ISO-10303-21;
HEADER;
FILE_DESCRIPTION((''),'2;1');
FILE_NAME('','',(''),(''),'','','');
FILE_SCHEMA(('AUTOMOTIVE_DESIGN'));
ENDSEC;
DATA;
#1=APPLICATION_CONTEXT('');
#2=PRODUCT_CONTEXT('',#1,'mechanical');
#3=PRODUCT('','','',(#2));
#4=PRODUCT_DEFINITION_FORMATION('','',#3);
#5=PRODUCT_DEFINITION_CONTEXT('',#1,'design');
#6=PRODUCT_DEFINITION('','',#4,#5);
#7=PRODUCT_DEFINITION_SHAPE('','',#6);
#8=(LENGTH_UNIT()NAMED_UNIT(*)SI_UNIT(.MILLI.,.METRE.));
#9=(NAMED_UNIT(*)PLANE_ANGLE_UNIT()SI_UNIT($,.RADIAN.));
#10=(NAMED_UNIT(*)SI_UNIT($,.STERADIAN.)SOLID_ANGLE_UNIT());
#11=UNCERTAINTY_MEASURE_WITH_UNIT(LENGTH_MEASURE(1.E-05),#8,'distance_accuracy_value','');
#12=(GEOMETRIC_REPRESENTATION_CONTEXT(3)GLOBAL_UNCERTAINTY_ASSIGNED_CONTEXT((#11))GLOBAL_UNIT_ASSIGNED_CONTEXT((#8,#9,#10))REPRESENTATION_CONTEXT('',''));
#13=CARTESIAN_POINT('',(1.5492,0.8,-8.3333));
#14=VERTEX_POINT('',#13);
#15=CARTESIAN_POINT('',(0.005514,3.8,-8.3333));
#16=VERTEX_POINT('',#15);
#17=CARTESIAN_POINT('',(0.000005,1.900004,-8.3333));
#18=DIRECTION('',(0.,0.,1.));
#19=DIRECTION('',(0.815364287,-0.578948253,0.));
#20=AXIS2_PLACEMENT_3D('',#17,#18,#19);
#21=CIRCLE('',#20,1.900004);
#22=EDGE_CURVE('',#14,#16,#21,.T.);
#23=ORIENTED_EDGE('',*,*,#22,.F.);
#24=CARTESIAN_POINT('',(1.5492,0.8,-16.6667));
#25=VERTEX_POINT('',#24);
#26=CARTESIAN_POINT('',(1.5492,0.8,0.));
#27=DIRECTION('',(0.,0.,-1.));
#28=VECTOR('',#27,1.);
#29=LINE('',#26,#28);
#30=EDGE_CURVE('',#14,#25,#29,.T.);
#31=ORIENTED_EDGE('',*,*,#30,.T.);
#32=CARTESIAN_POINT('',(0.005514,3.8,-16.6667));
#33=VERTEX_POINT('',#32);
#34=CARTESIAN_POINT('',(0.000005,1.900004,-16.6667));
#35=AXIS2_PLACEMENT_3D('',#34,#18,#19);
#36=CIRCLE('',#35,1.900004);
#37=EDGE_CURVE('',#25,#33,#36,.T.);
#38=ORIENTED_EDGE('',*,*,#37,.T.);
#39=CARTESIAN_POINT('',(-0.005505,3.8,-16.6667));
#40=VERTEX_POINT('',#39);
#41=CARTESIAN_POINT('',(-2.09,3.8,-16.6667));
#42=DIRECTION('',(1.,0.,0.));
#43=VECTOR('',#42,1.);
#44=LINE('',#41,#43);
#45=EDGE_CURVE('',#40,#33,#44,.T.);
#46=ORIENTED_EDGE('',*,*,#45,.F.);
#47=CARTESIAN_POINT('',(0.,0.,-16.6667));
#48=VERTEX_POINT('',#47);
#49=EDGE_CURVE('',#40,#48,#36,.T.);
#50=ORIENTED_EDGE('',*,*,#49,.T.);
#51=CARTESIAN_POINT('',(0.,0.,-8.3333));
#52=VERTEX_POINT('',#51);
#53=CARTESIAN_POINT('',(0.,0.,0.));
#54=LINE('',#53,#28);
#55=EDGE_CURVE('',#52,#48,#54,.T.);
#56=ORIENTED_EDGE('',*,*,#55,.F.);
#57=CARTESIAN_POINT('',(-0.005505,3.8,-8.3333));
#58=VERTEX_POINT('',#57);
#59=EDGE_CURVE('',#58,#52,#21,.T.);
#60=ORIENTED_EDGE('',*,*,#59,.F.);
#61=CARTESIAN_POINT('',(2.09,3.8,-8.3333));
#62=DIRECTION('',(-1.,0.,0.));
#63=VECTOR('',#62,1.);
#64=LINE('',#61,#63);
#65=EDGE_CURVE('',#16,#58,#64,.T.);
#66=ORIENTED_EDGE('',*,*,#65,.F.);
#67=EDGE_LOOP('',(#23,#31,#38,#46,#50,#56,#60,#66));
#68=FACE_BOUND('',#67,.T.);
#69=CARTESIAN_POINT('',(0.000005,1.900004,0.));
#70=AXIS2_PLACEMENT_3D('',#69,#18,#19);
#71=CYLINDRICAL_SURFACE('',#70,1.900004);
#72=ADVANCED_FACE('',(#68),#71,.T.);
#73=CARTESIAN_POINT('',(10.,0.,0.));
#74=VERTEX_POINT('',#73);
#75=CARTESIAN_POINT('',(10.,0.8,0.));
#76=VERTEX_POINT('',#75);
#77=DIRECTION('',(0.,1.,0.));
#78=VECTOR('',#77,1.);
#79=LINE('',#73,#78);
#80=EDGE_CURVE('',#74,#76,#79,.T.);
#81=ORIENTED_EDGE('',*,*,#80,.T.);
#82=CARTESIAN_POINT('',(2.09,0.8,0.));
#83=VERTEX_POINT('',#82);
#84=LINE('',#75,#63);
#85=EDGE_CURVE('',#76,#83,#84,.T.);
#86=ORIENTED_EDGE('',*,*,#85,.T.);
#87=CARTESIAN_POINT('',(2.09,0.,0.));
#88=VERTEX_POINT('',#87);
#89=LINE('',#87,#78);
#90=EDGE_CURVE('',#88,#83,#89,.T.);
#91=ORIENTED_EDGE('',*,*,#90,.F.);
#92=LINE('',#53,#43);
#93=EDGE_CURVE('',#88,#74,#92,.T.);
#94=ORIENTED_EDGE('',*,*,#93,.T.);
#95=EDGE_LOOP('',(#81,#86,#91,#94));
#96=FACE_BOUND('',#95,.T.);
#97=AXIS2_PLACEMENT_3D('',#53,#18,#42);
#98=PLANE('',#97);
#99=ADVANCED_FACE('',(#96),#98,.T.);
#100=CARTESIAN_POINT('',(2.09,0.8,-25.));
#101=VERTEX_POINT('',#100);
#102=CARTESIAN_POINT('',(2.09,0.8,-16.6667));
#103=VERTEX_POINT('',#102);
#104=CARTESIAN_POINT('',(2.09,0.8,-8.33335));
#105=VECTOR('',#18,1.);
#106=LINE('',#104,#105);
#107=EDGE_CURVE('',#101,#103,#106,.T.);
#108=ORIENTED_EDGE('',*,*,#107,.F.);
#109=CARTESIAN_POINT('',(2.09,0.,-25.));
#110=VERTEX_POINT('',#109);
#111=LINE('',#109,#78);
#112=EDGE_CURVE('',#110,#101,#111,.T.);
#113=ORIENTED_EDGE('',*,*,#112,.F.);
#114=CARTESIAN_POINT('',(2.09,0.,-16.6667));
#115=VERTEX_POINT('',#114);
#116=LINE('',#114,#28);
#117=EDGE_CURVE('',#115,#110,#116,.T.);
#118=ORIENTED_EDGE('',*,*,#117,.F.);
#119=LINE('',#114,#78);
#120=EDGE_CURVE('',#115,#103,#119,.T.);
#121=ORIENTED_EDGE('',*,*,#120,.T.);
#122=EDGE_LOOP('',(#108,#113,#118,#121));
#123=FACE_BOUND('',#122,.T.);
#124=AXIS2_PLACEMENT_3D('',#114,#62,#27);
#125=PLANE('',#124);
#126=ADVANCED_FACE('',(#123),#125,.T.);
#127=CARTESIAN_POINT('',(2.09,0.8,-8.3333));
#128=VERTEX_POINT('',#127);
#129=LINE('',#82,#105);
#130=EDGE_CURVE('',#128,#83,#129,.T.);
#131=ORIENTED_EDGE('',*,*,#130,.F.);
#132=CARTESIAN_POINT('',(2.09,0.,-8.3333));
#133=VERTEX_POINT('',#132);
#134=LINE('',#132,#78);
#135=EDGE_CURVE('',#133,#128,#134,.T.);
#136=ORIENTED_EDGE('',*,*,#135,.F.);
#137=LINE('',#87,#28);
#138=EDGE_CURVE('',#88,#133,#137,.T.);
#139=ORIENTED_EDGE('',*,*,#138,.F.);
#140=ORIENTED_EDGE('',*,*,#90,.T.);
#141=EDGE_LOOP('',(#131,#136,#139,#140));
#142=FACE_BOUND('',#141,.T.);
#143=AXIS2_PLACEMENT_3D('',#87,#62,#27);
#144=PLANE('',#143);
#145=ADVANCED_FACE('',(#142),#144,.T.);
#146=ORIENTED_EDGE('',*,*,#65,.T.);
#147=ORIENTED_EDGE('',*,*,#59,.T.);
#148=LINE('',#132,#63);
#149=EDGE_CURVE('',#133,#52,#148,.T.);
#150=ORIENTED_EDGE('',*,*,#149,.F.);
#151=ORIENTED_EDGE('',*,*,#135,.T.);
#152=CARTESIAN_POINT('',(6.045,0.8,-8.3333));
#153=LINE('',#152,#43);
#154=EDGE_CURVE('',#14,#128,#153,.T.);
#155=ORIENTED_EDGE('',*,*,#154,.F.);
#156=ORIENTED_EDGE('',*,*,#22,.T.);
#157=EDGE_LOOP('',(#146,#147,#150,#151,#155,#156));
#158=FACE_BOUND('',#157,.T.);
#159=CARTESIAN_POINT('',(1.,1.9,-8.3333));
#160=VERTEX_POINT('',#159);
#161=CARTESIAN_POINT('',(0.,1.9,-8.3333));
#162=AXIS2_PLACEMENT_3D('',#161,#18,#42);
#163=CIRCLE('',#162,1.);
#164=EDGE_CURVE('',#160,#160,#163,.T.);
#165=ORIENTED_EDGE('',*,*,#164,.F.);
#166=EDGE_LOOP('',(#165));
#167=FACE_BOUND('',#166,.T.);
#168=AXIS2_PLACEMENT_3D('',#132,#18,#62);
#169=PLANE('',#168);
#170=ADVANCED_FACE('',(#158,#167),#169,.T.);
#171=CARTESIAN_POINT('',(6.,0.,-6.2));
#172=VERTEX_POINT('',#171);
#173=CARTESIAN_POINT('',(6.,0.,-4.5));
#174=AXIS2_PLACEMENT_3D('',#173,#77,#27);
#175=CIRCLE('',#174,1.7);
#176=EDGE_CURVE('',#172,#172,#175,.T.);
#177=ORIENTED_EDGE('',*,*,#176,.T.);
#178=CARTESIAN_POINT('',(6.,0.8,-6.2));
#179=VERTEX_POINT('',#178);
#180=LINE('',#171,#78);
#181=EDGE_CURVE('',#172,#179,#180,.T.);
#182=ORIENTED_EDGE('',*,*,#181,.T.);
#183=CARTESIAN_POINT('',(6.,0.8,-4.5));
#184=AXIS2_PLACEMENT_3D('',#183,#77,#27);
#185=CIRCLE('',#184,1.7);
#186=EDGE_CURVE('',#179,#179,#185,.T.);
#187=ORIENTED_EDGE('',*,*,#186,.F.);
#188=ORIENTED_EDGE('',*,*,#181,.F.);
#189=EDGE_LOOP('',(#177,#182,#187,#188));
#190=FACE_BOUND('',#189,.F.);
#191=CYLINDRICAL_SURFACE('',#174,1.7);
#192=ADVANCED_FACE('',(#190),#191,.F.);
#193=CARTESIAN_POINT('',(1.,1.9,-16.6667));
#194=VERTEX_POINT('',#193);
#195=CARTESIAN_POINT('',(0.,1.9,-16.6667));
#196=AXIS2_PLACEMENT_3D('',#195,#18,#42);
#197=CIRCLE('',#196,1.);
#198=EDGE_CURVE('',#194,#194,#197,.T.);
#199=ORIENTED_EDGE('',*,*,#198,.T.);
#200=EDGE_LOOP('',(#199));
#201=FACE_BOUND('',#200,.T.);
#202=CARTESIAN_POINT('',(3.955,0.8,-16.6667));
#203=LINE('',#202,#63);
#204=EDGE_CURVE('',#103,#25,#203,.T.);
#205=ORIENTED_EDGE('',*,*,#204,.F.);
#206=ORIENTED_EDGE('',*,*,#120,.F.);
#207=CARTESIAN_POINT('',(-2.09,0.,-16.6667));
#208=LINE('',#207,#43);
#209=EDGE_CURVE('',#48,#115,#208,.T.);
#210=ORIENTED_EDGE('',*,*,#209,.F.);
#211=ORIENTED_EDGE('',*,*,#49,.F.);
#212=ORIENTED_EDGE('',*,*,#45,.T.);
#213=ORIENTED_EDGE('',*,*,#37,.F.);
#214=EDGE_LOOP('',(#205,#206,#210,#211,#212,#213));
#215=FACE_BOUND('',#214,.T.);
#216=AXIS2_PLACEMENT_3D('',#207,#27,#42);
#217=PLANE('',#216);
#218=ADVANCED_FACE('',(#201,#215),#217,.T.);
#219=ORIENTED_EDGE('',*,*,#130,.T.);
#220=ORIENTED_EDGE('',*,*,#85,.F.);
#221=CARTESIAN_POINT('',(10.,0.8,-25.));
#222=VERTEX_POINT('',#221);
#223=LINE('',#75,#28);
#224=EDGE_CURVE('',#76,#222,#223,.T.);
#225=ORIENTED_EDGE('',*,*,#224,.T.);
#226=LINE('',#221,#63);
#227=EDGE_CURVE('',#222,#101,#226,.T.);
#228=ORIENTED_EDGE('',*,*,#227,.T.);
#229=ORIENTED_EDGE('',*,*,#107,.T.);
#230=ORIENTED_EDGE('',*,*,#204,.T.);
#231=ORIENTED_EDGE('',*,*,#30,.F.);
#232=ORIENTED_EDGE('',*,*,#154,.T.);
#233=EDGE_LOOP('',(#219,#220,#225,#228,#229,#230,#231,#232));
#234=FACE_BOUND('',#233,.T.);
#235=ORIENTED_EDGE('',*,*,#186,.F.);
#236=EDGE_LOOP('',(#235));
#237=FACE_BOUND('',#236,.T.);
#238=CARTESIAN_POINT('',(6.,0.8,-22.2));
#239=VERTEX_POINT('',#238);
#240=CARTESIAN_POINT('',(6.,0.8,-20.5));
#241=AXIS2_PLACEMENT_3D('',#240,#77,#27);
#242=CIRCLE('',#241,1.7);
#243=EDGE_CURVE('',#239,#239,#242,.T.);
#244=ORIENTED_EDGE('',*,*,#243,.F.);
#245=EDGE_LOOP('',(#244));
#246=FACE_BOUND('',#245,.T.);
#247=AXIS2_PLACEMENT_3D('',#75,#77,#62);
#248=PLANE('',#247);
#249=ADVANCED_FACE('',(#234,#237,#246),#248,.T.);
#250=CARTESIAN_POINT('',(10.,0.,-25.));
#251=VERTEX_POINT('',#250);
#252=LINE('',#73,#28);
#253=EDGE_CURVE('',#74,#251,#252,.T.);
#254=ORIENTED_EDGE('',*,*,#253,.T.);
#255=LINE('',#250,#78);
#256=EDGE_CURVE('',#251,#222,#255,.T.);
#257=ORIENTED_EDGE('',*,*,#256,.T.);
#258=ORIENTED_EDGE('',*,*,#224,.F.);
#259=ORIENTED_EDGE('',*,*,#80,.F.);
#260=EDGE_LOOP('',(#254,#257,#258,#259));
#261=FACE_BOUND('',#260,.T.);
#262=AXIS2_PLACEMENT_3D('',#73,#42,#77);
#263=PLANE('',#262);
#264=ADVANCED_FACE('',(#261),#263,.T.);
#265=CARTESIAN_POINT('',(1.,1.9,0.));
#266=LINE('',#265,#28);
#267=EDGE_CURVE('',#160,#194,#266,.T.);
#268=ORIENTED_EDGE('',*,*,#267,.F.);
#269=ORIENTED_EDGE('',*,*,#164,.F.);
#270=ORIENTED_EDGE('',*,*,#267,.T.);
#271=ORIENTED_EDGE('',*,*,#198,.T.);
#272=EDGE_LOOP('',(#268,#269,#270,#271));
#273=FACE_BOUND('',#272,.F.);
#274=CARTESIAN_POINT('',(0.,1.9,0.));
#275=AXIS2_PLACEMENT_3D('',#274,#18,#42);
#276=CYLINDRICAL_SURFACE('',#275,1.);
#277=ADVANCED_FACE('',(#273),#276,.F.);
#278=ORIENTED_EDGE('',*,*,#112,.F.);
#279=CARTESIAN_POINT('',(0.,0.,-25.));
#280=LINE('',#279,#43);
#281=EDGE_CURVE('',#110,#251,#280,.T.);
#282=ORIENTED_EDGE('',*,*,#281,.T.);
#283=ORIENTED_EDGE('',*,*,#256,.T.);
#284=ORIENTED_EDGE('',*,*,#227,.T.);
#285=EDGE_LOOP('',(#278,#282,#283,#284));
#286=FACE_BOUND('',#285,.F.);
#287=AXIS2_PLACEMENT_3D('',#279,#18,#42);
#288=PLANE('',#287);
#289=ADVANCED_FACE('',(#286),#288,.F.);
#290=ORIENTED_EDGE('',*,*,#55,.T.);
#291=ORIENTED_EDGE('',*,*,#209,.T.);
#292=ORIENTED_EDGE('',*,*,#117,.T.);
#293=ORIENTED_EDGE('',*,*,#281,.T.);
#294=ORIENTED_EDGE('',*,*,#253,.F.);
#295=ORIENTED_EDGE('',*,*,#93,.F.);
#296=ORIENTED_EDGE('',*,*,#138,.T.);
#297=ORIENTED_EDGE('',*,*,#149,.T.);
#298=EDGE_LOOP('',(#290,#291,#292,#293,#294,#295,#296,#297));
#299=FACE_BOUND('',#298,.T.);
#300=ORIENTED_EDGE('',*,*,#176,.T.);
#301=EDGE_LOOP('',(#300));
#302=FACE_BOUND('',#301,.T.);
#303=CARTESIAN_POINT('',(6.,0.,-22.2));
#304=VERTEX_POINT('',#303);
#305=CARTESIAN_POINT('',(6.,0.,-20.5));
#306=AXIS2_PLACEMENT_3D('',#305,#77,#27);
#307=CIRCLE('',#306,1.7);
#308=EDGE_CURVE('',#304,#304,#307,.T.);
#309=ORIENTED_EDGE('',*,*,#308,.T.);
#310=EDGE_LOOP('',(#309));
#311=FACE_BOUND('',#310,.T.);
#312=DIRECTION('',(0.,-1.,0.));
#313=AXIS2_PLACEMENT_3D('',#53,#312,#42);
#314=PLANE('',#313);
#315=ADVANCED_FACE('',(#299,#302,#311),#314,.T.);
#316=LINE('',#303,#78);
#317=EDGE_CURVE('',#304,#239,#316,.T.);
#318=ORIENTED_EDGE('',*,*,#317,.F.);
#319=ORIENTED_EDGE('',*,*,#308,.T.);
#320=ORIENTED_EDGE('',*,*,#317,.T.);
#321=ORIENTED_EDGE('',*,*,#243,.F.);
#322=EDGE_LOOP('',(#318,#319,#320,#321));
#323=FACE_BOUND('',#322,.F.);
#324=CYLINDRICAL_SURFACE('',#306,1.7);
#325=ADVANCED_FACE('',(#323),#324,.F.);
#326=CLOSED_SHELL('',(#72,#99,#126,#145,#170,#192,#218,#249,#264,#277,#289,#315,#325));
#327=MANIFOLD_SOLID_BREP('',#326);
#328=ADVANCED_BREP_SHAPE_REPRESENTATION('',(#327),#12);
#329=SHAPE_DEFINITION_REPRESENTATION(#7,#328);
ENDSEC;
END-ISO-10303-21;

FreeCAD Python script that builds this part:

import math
import FreeCAD as App
import Part
import Sketcher
Q = App.Units.Quantity

doc = App.newDocument("Part")
params = doc.addObject("Spreadsheet::Sheet", "Params")
for row, (alias, value) in enumerate([
    ("sketch1_diameter", "2 mm"),
    ("sketch1_radius", "1.9 mm"),
    ("sketch1_width", "10 mm"),
    ("sketch1_height", "0.8 mm"),
    ("pad1_length", "25 mm"),
    ("sketch2_height", "25 mm"),
    ("sketch2_width", "8.09 mm"),
    ("sketch2_width2", "4.18 mm"),
    ("pocket1_length", "3.8 mm"),
    ("sketch3_diameter", "3.4 mm"),
    ("hole_diameter", "3.4 mm"),
    ("hole_depth", "0.8 mm"),
    ("linearpattern_pitch", "16 mm"),
], start=1):
    params.set(f"A{row}", alias)
    params.set(f"B{row}", "=" + value)
    params.setAlias(f"B{row}", alias)

body = doc.addObject("PartDesign::Body", "Body")

# Sketch on XY plane
sketch1 = doc.addObject("Sketcher::SketchObject", "Sketch")
body.addObject(sketch1)
sketch1.AttachmentSupport = (doc.XY_Plane, [""])
sketch1.MapMode = "FlatFace"
sketch1.addGeometry(Part.LineSegment(App.Vector(10, 0.8, 0), App.Vector(1.5, 0.8, 0)), False)
sketch1.addGeometry(Part.ArcOfCircle(Part.Circle(App.Vector(0, 1.9, 0), App.Vector(0, 0, 1), 1.9), math.radians(-35), math.radians(270)), False)
sketch1.addGeometry(Part.LineSegment(App.Vector(0, 0, 0), App.Vector(10, 0, 0)), False)
sketch1.addGeometry(Part.LineSegment(App.Vector(10, 0, 0), App.Vector(10, 0.8, 0)), False)
sketch1.addGeometry(Part.Circle(App.Vector(0, 1.9, 0), App.Vector(0, 0, 1), 1), False)
sketch1.addConstraint(Sketcher.Constraint("Coincident", 0, 2, 1, 1))
sketch1.addConstraint(Sketcher.Constraint("Tangent", 1, 2, 2, 1))
sketch1.addConstraint(Sketcher.Constraint("Coincident", 2, 2, 3, 1))
sketch1.addConstraint(Sketcher.Constraint("Coincident", 3, 2, 0, 1))
sketch1.addConstraint(Sketcher.Constraint("Horizontal", 0))
sketch1.addConstraint(Sketcher.Constraint("Horizontal", 2))
sketch1.addConstraint(Sketcher.Constraint("Vertical", 3))
sketch1.addConstraint(Sketcher.Constraint("Coincident", 1, 2, -1, 1))
sketch1.addConstraint(Sketcher.Constraint("Coincident", 4, 3, 1, 3))
sketch1.addConstraint(Sketcher.Constraint("Diameter", 4, Q("2 mm")))
sketch1.addConstraint(Sketcher.Constraint("Radius", 1, Q("1.9 mm")))
sketch1.addConstraint(Sketcher.Constraint("DistanceX", 2, 1, 2, 2, Q("10 mm")))
sketch1.addConstraint(Sketcher.Constraint("DistanceY", 3, 1, 3, 2, Q("0.8 mm")))
sketch1.setExpression("Constraints[9]", "Params.sketch1_diameter")
sketch1.setExpression("Constraints[10]", "Params.sketch1_radius")
sketch1.setExpression("Constraints[11]", "Params.sketch1_width")
sketch1.setExpression("Constraints[12]", "Params.sketch1_height")
pad1 = doc.addObject("PartDesign::Pad", "Pad")
body.addObject(pad1)
pad1.Profile = sketch1
pad1.setExpression("Length", "Params.pad1_length")
pad1.Reversed = True

# Sketch on XZ plane
sketch2 = doc.addObject("Sketcher::SketchObject", "Sketch001")
body.addObject(sketch2)
sketch2.AttachmentSupport = (doc.XZ_Plane, [""])
sketch2.MapMode = "FlatFace"
sketch2.addGeometry(Part.LineSegment(App.Vector(2.1, -25, 0), App.Vector(-6, -25, 0)), False)
sketch2.addGeometry(Part.LineSegment(App.Vector(-6, -25, 0), App.Vector(-6, 0, 0)), False)
sketch2.addGeometry(Part.LineSegment(App.Vector(-6, 0, 0), App.Vector(2.1, 0, 0)), False)
sketch2.addGeometry(Part.LineSegment(App.Vector(2.1, 0, 0), App.Vector(2.1, -8.3, 0)), False)
sketch2.addGeometry(Part.LineSegment(App.Vector(2.1, -8.3, 0), App.Vector(-2.1, -8.3, 0)), False)
sketch2.addGeometry(Part.LineSegment(App.Vector(-2.1, -8.3, 0), App.Vector(-2.1, -16.7, 0)), False)
sketch2.addGeometry(Part.LineSegment(App.Vector(-2.1, -16.7, 0), App.Vector(2.1, -16.7, 0)), False)
sketch2.addGeometry(Part.LineSegment(App.Vector(2.1, -16.7, 0), App.Vector(2.1, -25, 0)), False)
sketch2.addConstraint(Sketcher.Constraint("Coincident", 0, 2, 1, 1))
sketch2.addConstraint(Sketcher.Constraint("Coincident", 1, 2, 2, 1))
sketch2.addConstraint(Sketcher.Constraint("Coincident", 2, 2, 3, 1))
sketch2.addConstraint(Sketcher.Constraint("Coincident", 3, 2, 4, 1))
sketch2.addConstraint(Sketcher.Constraint("Coincident", 4, 2, 5, 1))
sketch2.addConstraint(Sketcher.Constraint("Coincident", 5, 2, 6, 1))
sketch2.addConstraint(Sketcher.Constraint("Coincident", 6, 2, 7, 1))
sketch2.addConstraint(Sketcher.Constraint("Coincident", 7, 2, 0, 1))
sketch2.addConstraint(Sketcher.Constraint("Horizontal", 0))
sketch2.addConstraint(Sketcher.Constraint("Vertical", 1))
sketch2.addConstraint(Sketcher.Constraint("Horizontal", 2))
sketch2.addConstraint(Sketcher.Constraint("Vertical", 3))
sketch2.addConstraint(Sketcher.Constraint("Horizontal", 4))
sketch2.addConstraint(Sketcher.Constraint("Vertical", 5))
sketch2.addConstraint(Sketcher.Constraint("Horizontal", 6))
sketch2.addConstraint(Sketcher.Constraint("Vertical", 7))
sketch2.addConstraint(Sketcher.Constraint("PointOnObject", 1, 2, -1))
sketch2.addConstraint(Sketcher.Constraint("Vertical", 3, 2, 6, 2))
sketch2.addConstraint(Sketcher.Constraint("Equal", 3, 5))
sketch2.addConstraint(Sketcher.Constraint("Equal", 5, 7))
sketch2.addConstraint(Sketcher.Constraint("DistanceY", 1, 1, 1, 2, Q("25 mm")))
sketch2.addConstraint(Sketcher.Constraint("DistanceX", 0, 2, -1, 1, Q("6 mm")))
sketch2.addConstraint(Sketcher.Constraint("DistanceX", 0, 2, 0, 1, Q("8.09 mm")))
sketch2.addConstraint(Sketcher.Constraint("DistanceX", 4, 2, 4, 1, Q("4.18 mm")))
sketch2.setExpression("Constraints[20]", "Params.sketch2_height")
sketch2.setExpression("Constraints[22]", "Params.sketch2_width")
sketch2.setExpression("Constraints[23]", "Params.sketch2_width2")
pocket1 = doc.addObject("PartDesign::Pocket", "Pocket")
body.addObject(pocket1)
pocket1.Profile = sketch2
pocket1.setExpression("Length", "Params.pocket1_length")

# Sketch on XZ plane
sketch3 = doc.addObject("Sketcher::SketchObject", "Sketch002")
body.addObject(sketch3)
sketch3.AttachmentSupport = (doc.XZ_Plane, [""])
sketch3.MapMode = "FlatFace"
sketch3.addGeometry(Part.Circle(App.Vector(6, -20.5, 0), App.Vector(0, 0, 1), 1.7), False)
sketch3.addConstraint(Sketcher.Constraint("Diameter", 0, Q("3.4 mm")))
sketch3.addConstraint(Sketcher.Constraint("DistanceX", -1, 1, 0, 3, Q("6 mm")))
sketch3.addConstraint(Sketcher.Constraint("DistanceY", 0, 3, -1, 1, Q("20.5 mm")))
sketch3.setExpression("Constraints[0]", "Params.sketch3_diameter")
doc.recompute()
hole = doc.addObject("PartDesign::Hole", "Hole")
body.addObject(hole)
hole.Profile = sketch3
hole.ThreadType = "None"
hole.setExpression("Diameter", "Params.hole_diameter")
hole.DepthType = "Dimension"
hole.setExpression("Depth", "Params.hole_depth")
hole.DrillPoint = "Flat"
doc.recompute()

linearpattern = doc.addObject("PartDesign::LinearPattern", "LinearPattern")
body.addObject(linearpattern)
linearpattern.Originals = [hole]
linearpattern.Direction = (doc.Z_Axis, [""])
linearpattern.Mode = "offset"
linearpattern.setExpression("Offset", "Params.linearpattern_pitch")
linearpattern.Occurrences = 2
body.Tip = linearpattern

doc.recompute()
